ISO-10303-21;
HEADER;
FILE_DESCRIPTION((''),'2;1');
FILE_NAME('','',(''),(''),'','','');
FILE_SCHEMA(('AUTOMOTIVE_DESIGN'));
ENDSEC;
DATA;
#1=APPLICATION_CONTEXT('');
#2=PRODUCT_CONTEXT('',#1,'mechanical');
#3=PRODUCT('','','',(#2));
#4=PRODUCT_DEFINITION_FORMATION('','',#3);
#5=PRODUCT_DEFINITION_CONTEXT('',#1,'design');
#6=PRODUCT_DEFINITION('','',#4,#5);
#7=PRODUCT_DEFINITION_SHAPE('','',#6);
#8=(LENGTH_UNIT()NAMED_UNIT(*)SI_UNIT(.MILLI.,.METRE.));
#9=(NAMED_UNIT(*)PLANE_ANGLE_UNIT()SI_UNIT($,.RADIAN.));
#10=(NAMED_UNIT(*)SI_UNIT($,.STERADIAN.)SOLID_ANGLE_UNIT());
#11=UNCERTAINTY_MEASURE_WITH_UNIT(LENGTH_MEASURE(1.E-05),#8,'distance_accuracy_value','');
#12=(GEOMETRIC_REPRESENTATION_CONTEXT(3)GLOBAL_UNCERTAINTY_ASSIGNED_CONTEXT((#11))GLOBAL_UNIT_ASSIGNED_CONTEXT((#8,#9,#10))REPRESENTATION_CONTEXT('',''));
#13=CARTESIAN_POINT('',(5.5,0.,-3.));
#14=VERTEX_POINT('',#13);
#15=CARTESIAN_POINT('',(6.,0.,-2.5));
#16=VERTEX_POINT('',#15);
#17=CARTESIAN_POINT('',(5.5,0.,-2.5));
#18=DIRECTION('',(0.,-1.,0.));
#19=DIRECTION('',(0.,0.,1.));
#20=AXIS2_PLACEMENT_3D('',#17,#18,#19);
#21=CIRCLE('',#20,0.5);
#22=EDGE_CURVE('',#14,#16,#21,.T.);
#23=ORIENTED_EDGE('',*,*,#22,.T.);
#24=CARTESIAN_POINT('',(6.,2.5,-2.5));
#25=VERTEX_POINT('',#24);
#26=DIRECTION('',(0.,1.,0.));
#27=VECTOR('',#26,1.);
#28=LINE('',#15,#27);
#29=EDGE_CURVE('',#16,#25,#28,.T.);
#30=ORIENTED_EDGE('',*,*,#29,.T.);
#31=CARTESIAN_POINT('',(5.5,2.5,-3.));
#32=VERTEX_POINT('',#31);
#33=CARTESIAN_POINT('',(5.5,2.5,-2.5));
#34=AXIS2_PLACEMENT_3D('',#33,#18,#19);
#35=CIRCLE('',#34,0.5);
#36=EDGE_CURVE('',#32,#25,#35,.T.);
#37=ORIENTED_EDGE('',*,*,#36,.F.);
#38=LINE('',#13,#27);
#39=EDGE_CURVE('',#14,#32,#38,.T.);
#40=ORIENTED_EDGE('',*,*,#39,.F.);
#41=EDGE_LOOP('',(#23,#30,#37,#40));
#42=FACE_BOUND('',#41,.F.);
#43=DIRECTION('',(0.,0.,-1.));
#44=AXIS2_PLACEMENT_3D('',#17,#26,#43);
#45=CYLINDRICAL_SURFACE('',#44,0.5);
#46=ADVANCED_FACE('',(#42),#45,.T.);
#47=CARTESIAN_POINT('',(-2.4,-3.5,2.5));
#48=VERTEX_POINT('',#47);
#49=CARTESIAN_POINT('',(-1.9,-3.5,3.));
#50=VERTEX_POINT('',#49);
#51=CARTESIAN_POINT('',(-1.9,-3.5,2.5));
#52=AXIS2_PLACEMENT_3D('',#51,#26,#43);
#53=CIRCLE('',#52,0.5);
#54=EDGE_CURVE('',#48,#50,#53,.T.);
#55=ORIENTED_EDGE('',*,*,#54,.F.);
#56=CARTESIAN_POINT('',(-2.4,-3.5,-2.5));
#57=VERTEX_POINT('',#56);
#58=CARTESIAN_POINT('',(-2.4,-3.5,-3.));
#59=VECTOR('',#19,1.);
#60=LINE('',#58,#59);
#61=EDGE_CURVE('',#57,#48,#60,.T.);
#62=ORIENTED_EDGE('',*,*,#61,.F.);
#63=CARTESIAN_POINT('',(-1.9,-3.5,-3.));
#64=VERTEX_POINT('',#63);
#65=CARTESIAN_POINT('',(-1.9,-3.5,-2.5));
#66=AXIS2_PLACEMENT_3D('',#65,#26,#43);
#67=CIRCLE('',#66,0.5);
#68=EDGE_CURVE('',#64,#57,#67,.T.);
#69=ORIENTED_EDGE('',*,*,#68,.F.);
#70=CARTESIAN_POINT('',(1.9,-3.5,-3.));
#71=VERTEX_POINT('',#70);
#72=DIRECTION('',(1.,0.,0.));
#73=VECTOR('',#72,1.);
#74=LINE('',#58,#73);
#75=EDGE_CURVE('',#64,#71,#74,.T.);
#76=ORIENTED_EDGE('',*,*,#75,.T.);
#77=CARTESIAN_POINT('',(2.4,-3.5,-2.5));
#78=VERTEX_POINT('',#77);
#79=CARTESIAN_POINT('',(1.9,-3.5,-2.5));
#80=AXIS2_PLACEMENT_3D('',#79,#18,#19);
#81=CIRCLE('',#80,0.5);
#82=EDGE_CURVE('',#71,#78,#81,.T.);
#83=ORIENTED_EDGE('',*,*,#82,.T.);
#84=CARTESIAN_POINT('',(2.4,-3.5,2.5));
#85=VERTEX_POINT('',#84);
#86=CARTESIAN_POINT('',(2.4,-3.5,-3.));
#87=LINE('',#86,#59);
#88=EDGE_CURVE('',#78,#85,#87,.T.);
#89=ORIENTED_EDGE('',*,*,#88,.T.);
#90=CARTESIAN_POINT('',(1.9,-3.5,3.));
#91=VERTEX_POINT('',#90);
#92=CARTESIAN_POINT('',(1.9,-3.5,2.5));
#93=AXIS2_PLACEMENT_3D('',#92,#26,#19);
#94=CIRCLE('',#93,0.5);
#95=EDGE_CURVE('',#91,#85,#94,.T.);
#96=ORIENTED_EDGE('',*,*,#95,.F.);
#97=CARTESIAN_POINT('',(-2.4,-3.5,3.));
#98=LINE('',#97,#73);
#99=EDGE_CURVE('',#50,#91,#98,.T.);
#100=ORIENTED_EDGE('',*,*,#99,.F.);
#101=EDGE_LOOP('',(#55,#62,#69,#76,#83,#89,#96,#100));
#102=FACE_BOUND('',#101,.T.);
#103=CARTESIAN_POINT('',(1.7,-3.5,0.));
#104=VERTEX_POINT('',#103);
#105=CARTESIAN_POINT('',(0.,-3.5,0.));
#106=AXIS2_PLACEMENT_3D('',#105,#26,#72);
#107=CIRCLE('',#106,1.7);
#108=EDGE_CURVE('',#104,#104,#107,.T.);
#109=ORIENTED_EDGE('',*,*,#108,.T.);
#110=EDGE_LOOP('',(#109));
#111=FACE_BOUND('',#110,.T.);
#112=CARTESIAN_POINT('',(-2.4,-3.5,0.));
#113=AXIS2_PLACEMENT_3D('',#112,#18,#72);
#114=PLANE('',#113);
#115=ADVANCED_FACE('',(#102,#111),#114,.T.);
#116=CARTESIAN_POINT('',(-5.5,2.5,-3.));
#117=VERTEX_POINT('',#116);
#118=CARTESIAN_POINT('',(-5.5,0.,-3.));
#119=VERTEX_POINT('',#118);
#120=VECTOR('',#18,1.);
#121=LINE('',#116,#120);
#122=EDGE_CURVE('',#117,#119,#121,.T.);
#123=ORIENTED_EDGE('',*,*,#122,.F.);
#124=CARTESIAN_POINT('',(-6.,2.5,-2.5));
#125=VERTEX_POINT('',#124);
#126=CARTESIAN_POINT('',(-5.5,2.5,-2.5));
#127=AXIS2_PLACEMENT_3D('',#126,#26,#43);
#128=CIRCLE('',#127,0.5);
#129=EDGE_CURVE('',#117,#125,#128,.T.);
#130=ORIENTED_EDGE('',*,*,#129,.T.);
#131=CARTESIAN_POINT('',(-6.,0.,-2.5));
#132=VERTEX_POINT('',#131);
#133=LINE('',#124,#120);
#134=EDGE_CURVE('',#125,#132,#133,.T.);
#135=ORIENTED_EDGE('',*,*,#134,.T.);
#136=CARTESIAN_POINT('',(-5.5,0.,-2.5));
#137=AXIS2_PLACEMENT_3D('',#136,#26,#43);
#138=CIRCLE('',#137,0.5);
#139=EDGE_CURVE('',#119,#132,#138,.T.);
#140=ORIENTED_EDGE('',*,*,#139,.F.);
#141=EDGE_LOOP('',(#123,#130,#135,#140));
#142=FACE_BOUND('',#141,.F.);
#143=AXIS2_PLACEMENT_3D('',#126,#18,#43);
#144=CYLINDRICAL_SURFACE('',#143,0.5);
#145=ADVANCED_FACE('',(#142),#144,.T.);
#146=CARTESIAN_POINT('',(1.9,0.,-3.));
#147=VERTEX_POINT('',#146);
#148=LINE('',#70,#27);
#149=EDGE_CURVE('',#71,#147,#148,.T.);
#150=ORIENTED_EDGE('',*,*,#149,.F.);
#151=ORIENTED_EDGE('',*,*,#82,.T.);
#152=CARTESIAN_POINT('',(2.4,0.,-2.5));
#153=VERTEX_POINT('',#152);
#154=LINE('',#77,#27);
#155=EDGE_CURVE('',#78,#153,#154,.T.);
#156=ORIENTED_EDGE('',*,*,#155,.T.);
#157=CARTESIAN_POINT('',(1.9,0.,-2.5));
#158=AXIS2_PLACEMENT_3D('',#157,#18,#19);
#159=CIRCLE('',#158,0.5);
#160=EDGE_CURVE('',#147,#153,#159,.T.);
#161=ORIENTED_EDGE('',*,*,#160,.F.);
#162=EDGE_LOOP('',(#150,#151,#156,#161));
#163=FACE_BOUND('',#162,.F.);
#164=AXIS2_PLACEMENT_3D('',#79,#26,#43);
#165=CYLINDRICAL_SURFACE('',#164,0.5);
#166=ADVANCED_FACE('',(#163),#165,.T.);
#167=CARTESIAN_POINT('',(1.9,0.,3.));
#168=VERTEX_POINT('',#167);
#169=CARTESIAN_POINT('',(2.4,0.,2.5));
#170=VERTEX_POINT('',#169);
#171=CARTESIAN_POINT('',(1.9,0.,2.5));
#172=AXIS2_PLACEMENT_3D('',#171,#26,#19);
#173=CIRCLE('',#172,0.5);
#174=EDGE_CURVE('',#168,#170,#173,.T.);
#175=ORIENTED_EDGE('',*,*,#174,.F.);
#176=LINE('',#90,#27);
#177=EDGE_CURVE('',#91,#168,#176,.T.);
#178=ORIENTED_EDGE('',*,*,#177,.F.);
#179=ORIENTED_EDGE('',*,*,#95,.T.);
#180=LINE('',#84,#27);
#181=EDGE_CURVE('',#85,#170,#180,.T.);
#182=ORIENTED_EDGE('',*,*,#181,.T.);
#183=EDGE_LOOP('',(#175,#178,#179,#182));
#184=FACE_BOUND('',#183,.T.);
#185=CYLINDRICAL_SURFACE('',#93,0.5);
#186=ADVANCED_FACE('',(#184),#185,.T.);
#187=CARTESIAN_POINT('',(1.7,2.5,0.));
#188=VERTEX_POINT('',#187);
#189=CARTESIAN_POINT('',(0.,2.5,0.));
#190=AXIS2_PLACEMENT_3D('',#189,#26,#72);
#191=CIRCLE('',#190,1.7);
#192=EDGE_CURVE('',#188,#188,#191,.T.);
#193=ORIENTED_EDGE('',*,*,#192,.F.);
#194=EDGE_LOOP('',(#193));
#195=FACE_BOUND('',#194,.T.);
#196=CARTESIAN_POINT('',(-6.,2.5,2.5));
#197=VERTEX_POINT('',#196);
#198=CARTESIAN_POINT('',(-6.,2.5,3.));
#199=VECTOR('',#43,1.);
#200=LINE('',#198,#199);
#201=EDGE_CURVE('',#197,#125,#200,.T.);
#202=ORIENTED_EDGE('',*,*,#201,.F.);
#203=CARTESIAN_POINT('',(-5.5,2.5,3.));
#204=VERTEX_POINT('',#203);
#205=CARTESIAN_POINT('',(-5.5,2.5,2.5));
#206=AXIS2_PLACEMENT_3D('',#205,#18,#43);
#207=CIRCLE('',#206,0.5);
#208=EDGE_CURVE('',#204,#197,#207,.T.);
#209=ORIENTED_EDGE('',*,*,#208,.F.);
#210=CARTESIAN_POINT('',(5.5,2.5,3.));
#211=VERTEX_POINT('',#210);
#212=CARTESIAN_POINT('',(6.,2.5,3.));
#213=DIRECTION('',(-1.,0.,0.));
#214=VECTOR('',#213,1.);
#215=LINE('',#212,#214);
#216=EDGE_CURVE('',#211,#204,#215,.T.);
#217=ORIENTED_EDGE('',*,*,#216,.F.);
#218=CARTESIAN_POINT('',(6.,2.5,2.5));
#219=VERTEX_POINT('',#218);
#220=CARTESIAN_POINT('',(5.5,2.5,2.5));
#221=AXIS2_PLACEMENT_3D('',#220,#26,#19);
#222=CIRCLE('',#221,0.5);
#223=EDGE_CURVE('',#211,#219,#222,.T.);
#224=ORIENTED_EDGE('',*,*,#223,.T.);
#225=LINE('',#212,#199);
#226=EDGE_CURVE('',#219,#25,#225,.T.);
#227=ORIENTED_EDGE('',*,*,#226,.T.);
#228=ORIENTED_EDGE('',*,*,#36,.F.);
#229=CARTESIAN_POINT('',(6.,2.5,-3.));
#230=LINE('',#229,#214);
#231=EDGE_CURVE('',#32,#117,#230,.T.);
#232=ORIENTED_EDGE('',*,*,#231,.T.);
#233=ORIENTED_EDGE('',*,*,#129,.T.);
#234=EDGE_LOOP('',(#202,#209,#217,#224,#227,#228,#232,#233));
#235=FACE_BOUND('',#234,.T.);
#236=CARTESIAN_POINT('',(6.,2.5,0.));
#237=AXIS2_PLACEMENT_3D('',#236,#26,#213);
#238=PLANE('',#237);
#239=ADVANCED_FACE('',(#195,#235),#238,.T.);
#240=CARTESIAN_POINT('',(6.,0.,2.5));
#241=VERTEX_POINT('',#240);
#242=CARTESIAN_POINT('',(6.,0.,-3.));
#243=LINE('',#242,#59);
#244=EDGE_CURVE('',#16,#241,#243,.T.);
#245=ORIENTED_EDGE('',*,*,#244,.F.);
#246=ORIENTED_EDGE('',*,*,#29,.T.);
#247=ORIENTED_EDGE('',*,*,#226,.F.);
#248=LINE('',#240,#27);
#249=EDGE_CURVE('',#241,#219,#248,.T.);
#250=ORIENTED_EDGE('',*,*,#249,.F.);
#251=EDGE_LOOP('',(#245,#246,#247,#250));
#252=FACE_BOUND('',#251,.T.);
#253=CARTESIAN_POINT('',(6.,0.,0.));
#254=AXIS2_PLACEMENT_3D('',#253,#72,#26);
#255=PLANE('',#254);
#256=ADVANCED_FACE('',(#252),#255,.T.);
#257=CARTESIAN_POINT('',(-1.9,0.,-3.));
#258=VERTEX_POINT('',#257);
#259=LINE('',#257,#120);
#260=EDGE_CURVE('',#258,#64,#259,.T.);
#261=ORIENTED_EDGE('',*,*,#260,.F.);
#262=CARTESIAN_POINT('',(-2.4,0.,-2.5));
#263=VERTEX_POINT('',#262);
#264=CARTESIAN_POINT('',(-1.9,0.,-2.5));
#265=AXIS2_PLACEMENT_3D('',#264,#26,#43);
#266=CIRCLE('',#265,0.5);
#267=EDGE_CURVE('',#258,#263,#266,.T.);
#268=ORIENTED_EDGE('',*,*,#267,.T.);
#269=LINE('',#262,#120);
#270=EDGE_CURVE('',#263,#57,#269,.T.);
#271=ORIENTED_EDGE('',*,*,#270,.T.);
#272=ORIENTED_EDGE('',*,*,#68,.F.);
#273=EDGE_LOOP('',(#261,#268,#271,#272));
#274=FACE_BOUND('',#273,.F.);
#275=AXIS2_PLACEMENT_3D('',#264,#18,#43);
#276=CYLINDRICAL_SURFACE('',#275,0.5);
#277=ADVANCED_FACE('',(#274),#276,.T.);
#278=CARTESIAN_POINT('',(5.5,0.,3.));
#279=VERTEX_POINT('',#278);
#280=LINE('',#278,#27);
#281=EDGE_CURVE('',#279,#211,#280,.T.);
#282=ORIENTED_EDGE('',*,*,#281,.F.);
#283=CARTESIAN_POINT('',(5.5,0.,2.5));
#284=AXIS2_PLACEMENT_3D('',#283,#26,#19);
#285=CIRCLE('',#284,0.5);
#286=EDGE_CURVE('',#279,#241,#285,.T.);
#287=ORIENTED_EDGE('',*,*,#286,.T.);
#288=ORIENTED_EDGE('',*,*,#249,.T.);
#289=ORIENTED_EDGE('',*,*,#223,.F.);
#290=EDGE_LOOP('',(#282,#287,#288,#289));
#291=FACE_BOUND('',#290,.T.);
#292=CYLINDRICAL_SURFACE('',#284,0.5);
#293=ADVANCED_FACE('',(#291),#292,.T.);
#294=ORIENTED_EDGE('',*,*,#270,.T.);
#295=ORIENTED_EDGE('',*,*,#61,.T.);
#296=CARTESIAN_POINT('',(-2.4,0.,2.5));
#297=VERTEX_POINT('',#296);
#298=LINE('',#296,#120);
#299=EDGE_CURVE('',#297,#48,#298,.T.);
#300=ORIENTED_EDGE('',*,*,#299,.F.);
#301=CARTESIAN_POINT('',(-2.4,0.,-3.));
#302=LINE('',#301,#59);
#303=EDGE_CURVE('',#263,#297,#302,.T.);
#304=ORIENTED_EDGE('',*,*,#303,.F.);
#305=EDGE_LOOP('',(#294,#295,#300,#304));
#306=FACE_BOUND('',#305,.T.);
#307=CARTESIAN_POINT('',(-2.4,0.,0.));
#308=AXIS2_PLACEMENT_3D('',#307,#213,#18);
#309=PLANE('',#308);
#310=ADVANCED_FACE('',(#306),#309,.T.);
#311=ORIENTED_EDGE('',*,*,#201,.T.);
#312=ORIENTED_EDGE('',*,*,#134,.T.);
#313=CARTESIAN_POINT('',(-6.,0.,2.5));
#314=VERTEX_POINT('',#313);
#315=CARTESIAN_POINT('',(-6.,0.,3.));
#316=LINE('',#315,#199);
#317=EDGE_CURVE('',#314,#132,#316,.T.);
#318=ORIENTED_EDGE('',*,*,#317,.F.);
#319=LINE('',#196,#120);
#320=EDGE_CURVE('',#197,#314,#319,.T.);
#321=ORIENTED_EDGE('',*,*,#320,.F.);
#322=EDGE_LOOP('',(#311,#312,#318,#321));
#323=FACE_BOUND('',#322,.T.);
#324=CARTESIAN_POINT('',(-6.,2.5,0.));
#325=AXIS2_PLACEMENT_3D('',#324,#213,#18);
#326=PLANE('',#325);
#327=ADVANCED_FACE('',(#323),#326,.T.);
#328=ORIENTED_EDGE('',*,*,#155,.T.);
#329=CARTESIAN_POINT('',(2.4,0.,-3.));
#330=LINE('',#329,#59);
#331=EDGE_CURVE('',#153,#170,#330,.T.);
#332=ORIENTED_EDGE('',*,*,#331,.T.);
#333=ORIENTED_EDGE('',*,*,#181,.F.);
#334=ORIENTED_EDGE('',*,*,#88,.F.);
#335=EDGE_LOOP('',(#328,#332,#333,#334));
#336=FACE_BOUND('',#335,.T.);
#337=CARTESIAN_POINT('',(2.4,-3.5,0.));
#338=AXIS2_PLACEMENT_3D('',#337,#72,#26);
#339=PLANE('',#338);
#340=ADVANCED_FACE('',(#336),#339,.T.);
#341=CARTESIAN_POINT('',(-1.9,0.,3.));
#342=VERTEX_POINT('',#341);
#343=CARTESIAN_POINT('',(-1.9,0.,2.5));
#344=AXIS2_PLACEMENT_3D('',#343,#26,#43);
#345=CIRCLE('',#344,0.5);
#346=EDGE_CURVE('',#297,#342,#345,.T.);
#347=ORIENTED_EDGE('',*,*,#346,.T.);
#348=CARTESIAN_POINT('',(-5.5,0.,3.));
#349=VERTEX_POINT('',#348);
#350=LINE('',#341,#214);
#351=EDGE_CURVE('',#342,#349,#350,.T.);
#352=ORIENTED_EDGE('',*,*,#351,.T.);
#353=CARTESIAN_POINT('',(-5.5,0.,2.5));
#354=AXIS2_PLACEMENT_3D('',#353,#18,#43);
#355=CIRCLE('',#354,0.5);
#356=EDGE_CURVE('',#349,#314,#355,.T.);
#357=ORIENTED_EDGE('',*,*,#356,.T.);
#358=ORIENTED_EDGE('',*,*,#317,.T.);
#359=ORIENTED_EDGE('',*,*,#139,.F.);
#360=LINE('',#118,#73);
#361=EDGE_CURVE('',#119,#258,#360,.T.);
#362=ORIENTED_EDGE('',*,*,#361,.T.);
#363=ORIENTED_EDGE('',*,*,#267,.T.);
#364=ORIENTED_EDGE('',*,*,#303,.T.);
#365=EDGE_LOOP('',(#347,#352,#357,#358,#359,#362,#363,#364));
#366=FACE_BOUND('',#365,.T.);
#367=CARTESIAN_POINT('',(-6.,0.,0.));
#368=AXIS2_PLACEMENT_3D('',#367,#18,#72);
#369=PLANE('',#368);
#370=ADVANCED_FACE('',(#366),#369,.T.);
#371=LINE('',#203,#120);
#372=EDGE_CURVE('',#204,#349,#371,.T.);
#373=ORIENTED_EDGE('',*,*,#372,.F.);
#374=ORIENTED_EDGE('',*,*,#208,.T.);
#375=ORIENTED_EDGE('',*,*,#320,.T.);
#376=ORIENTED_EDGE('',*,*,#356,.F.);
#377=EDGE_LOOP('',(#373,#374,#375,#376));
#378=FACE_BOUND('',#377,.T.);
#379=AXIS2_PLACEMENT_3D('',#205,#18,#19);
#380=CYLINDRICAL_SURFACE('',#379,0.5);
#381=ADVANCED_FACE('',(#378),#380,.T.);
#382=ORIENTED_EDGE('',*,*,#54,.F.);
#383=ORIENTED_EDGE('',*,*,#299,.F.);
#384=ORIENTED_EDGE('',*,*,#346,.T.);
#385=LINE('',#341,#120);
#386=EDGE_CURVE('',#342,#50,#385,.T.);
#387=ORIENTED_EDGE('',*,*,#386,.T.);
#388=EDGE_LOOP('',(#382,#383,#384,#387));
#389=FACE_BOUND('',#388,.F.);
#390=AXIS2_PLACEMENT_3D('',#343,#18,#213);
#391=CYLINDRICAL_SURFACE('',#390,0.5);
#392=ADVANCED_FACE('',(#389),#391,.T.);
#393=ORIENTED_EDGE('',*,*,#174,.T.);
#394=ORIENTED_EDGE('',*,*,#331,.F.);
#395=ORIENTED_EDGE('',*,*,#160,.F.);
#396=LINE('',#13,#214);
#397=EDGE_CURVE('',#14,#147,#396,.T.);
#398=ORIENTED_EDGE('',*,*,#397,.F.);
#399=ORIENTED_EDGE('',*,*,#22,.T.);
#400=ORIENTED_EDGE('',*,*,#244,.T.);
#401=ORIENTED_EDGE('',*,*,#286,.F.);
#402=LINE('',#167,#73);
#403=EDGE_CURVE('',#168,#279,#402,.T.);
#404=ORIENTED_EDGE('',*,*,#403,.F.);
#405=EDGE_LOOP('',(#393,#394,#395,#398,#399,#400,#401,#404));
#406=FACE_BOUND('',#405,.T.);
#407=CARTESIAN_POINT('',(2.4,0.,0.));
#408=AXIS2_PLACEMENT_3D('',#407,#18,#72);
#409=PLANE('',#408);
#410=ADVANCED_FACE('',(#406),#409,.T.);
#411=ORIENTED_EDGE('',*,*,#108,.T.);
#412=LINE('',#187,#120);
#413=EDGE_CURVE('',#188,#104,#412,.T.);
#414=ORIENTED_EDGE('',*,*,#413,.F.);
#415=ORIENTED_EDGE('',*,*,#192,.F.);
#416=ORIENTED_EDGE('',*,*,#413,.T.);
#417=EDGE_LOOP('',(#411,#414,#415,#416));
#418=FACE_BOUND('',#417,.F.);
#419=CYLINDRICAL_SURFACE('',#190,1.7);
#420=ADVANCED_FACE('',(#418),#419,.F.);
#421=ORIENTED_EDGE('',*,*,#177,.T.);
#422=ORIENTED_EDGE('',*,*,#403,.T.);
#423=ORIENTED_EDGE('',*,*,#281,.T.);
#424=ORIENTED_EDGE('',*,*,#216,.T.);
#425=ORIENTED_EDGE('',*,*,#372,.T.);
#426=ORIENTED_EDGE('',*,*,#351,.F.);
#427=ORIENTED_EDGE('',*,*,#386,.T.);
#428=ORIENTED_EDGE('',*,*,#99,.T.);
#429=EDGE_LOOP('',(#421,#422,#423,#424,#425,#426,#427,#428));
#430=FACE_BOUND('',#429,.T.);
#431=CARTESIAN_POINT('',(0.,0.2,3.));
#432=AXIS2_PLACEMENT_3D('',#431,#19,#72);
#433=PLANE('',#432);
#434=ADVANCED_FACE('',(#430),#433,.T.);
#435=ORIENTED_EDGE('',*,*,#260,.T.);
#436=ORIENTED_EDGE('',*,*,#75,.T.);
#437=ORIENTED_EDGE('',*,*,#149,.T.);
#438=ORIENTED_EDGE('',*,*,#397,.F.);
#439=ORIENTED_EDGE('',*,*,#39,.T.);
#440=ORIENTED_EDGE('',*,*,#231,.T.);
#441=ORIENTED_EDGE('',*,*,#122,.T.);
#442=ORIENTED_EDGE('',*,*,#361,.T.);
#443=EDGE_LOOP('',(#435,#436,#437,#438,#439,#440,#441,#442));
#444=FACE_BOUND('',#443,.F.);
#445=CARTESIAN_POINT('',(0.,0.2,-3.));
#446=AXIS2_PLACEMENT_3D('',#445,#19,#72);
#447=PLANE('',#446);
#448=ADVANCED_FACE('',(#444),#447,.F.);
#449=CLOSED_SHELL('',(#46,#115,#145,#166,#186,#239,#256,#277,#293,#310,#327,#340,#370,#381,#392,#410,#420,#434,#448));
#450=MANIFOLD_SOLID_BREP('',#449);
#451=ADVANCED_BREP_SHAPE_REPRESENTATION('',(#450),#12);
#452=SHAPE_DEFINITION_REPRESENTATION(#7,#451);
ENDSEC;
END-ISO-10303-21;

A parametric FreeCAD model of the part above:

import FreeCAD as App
import Part
import Sketcher
from FreeCAD import Vector
Q = App.Units.Quantity


def edges_at(feature, points):
    """Names of the edges that pass closest to the given points."""
    edges = feature.Shape.Edges
    near = lambda p: min(range(len(edges)), key=lambda i: edges[i].distToShape(Part.Vertex(*p))[0])
    return sorted({f"Edge{near(p) + 1}" for p in points})

doc = App.newDocument("Part")
body = doc.addObject("PartDesign::Body", "Body")

# Sketch on XY plane
sketch1 = body.newObject("Sketcher::SketchObject", "Sketch")
sketch1.AttachmentSupport = (doc.getObject("XY_Plane"), [""])
sketch1.MapMode = "FlatFace"
sketch1.addGeometry([
    Part.LineSegment(Vector(-6, 0, 0), Vector(-2.4, 0, 0)),  # 0
    Part.LineSegment(Vector(-2.4, 0, 0), Vector(-2.4, -3.5, 0)),  # 1
    Part.LineSegment(Vector(-2.4, -3.5, 0), Vector(2.4, -3.5, 0)),  # 2
    Part.LineSegment(Vector(2.4, -3.5, 0), Vector(2.4, 0, 0)),  # 3
    Part.LineSegment(Vector(2.4, 0, 0), Vector(6, 0, 0)),  # 4
    Part.LineSegment(Vector(6, 0, 0), Vector(6, 2.5, 0)),  # 5
    Part.LineSegment(Vector(6, 2.5, 0), Vector(-6, 2.5, 0)),  # 6
    Part.LineSegment(Vector(-6, 2.5, 0), Vector(-6, 0, 0)),  # 7
], False)
sketch1.addConstraint([
    Sketcher.Constraint("Coincident", 0, 2, 1, 1),
    Sketcher.Constraint("Coincident", 1, 2, 2, 1),
    Sketcher.Constraint("Coincident", 2, 2, 3, 1),
    Sketcher.Constraint("Coincident", 3, 2, 4, 1),
    Sketcher.Constraint("Coincident", 4, 2, 5, 1),
    Sketcher.Constraint("Coincident", 5, 2, 6, 1),
    Sketcher.Constraint("Coincident", 6, 2, 7, 1),
    Sketcher.Constraint("Coincident", 7, 2, 0, 1),
    Sketcher.Constraint("Horizontal", 0),
    Sketcher.Constraint("Vertical", 1),
    Sketcher.Constraint("Horizontal", 2),
    Sketcher.Constraint("Vertical", 3),
    Sketcher.Constraint("Horizontal", 4),
    Sketcher.Constraint("Vertical", 5),
    Sketcher.Constraint("Horizontal", 6),
    Sketcher.Constraint("Vertical", 7),
    Sketcher.Constraint("Symmetric", 0, 2, 3, 2, -1, 1),
    Sketcher.Constraint("Symmetric", 4, 2, 7, 2, -2),
    Sketcher.Constraint("DistanceX", 6, 2, 6, 1, Q("12 mm")),
    Sketcher.Constraint("DistanceX", 0, 1, 0, 2, Q("3.6 mm")),
    Sketcher.Constraint("DistanceY", 1, 2, 1, 1, Q("3.5 mm")),
    Sketcher.Constraint("DistanceY", 5, 1, 5, 2, Q("2.5 mm")),
])
pad1 = body.newObject("PartDesign::Pad", "Pad")
pad1.Profile = sketch1
pad1.Length = 6
pad1.Midplane = True

# Sketch on XZ plane
sketch2 = body.newObject("Sketcher::SketchObject", "Sketch001")
sketch2.AttachmentSupport = (doc.getObject("XZ_Plane"), [""])
sketch2.MapMode = "FlatFace"
sketch2.AttachmentOffset = App.Placement(Vector(0, 0, -2.5), App.Rotation())
sketch2.addGeometry(Part.Circle(Vector(0, 0, 0), Vector(0, 0, 1), 1.7), False)
sketch2.addConstraint([
    Sketcher.Constraint("Coincident", 0, 3, -1, 1),
    Sketcher.Constraint("Diameter", 0, Q("3.4 mm")),
])
pocket1 = body.newObject("PartDesign::Pocket", "Pocket")
pocket1.Profile = sketch2
pocket1.Type = "ThroughAll"
pocket1.Reversed = True
doc.recompute()

fillet = body.newObject("PartDesign::Fillet", "Fillet")
fillet.Base = (pocket1, edges_at(pocket1, [
    (-6, 1.25, -3),
    (6, 1.25, -3),
    (-6, 1.25, 3),
    (-2.4, -1.75, 3),
    (2.4, -1.75, 3),
    (6, 1.25, 3),
    (2.4, -1.75, -3),
    (-2.4, -1.75, -3),
]))
fillet.Radius = 0.5

doc.recompute()
